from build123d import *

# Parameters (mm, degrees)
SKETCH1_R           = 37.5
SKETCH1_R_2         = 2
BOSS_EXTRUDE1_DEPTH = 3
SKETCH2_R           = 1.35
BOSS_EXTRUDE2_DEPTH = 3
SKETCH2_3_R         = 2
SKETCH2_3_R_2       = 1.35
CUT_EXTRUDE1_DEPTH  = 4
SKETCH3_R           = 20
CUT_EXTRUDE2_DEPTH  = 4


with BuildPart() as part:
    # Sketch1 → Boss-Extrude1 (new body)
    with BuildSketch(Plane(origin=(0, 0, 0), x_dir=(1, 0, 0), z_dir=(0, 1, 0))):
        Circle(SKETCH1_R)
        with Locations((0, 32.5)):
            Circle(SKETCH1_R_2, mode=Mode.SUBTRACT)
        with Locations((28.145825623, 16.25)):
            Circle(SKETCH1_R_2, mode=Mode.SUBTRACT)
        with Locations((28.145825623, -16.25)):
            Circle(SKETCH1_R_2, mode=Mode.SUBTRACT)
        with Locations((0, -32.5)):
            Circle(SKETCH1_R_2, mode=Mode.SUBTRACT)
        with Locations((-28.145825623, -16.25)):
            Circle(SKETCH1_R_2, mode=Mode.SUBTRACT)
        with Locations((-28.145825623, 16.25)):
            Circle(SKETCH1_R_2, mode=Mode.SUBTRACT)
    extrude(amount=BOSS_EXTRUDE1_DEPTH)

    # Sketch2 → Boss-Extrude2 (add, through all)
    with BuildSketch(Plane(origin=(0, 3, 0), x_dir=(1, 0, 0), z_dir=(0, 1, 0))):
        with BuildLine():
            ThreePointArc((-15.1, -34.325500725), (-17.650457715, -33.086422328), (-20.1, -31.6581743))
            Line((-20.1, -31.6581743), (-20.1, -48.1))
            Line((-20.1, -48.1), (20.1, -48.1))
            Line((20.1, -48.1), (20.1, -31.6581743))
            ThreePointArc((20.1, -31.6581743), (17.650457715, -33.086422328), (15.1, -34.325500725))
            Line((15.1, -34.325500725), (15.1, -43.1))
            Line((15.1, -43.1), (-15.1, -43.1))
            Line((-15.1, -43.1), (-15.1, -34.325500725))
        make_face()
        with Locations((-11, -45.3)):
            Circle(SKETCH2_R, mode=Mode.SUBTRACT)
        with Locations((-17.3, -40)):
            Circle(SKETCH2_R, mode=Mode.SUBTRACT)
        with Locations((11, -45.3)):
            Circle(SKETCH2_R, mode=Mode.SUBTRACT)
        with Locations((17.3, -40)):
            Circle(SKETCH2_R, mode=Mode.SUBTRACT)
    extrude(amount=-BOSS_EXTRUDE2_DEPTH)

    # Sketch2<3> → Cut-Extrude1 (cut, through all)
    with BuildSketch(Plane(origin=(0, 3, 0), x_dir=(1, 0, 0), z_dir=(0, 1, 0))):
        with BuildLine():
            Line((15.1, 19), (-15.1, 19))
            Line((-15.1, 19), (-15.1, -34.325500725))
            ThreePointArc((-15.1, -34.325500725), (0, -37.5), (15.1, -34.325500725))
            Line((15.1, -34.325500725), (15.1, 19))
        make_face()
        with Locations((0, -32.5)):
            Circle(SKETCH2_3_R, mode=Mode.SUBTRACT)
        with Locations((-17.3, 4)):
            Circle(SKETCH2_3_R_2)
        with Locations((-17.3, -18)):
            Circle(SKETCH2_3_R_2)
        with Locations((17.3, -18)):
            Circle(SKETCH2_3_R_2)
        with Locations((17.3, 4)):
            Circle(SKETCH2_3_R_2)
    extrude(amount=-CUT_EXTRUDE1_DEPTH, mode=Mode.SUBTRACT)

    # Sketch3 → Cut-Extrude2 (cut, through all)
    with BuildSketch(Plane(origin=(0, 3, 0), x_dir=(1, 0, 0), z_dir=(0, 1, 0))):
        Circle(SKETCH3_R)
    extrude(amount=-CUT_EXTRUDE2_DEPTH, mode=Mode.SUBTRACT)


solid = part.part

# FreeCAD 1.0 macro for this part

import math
import FreeCAD as App
import Part
import Sketcher
Q = App.Units.Quantity

doc = App.newDocument("Part")
body = doc.addObject("PartDesign::Body", "Body")

sketch1 = doc.addObject("Sketcher::SketchObject", "Sketch")
body.addObject(sketch1)
sketch1.AttachmentSupport = (doc.XZ_Plane, [""])
sketch1.MapMode = "FlatFace"
sketch1.addGeometry([
    Part.Circle(App.Vector(0, 0, 0), App.Vector(0, 0, 1), 37.5),
    Part.Circle(App.Vector(-28.1, 16.2, 0), App.Vector(0, 0, 1), 2),
    Part.Circle(App.Vector(0, 32.5, 0), App.Vector(0, 0, 1), 2),
    Part.Circle(App.Vector(28.1, 16.2, 0), App.Vector(0, 0, 1), 2),
    Part.Circle(App.Vector(-28.1, -16.2, 0), App.Vector(0, 0, 1), 2),
    Part.Circle(App.Vector(28.1, -16.2, 0), App.Vector(0, 0, 1), 2),
    Part.Circle(App.Vector(0, -32.5, 0), App.Vector(0, 0, 1), 2),
], False)
sketch1.addConstraint([
    Sketcher.Constraint("Coincident", 0, 3, -1, 1),
    Sketcher.Constraint("Equal", 1, 2),
    Sketcher.Constraint("Equal", 2, 3),
    Sketcher.Constraint("Equal", 3, 4),
    Sketcher.Constraint("Equal", 4, 5),
    Sketcher.Constraint("Equal", 5, 6),
    Sketcher.Constraint("Symmetric", 3, 3, 4, 3, -1, 1),
    Sketcher.Constraint("Symmetric", 1, 3, 5, 3, -1, 1),
    Sketcher.Constraint("Symmetric", 2, 3, 6, 3, -1, 1),
    Sketcher.Constraint("Symmetric", 1, 3, 3, 3, -2),
    Sketcher.Constraint("PointOnObject", 2, 3, -2),
    Sketcher.Constraint("Diameter", 0, Q("75 mm")),
    Sketcher.Constraint("Diameter", 1, Q("4 mm")),
    Sketcher.Constraint("DistanceY", -1, 1, 2, 3, Q("32.5 mm")),
    Sketcher.Constraint("DistanceY", 4, 3, 1, 3, Q("32.5 mm")),
    Sketcher.Constraint("DistanceX", 1, 3, 3, 3, Q("56.291651 mm")),
])
pad1 = doc.addObject("PartDesign::Pad", "Pad")
body.addObject(pad1)
pad1.Profile = sketch1
pad1.Length = 3
pad1.Reversed = True

sketch2 = doc.addObject("Sketcher::SketchObject", "Sketch001")
body.addObject(sketch2)
sketch2.AttachmentSupport = (doc.XZ_Plane, [""])
sketch2.MapMode = "FlatFace"
sketch2.AttachmentOffset = App.Placement(App.Vector(0, 0, -3), App.Rotation())
sketch2.addGeometry([
    Part.ArcOfCircle(Part.Circle(App.Vector(0, 0, 0), App.Vector(0, 0, 1), 37.5), math.radians(113.74), math.radians(122.41)),
    Part.LineSegment(App.Vector(-20.1, 31.7, 0), App.Vector(-20.1, 48.1, 0)),
    Part.LineSegment(App.Vector(-20.1, 48.1, 0), App.Vector(20.1, 48.1, 0)),
    Part.LineSegment(App.Vector(20.1, 48.1, 0), App.Vector(20.1, 31.7, 0)),
    Part.ArcOfCircle(Part.Circle(App.Vector(0, 0, 0), App.Vector(0, 0, 1), 37.5), math.radians(57.59), math.radians(66.26)),
    Part.LineSegment(App.Vector(15.1, 34.3, 0), App.Vector(15.1, 43.1, 0)),
    Part.LineSegment(App.Vector(15.1, 43.1, 0), App.Vector(-15.1, 43.1, 0)),
    Part.LineSegment(App.Vector(-15.1, 43.1, 0), App.Vector(-15.1, 34.3, 0)),
    Part.Circle(App.Vector(-11, 45.3, 0), App.Vector(0, 0, 1), 1.4),
    Part.Circle(App.Vector(11, 45.3, 0), App.Vector(0, 0, 1), 1.4),
    Part.Circle(App.Vector(-17.3, 40, 0), App.Vector(0, 0, 1), 1.4),
    Part.Circle(App.Vector(17.3, 40, 0), App.Vector(0, 0, 1), 1.4),
], False)
sketch2.addConstraint([
    Sketcher.Constraint("Coincident", 0, 2, 1, 1),
    Sketcher.Constraint("Coincident", 1, 2, 2, 1),
    Sketcher.Constraint("Coincident", 2, 2, 3, 1),
    Sketcher.Constraint("Coincident", 3, 2, 4, 1),
    Sketcher.Constraint("Coincident", 4, 2, 5, 1),
    Sketcher.Constraint("Coincident", 5, 2, 6, 1),
    Sketcher.Constraint("Coincident", 6, 2, 7, 1),
    Sketcher.Constraint("Coincident", 7, 2, 0, 1),
    Sketcher.Constraint("Vertical", 1),
    Sketcher.Constraint("Horizontal", 2),
    Sketcher.Constraint("Vertical", 3),
    Sketcher.Constraint("Vertical", 5),
    Sketcher.Constraint("Horizontal", 6),
    Sketcher.Constraint("Vertical", 7),
    Sketcher.Constraint("Coincident", 0, 3, -1, 1),
    Sketcher.Constraint("Coincident", 4, 3, -1, 1),
    Sketcher.Constraint("Equal", 0, 4),
    Sketcher.Constraint("Equal", 8, 9),
    Sketcher.Constraint("Equal", 9, 10),
    Sketcher.Constraint("Equal", 10, 11),
    Sketcher.Constraint("Symmetric", 8, 3, 9, 3, -2),
    Sketcher.Constraint("Symmetric", 10, 3, 11, 3, -2),
    Sketcher.Constraint("Horizontal", 0, 2, 3, 2),
    Sketcher.Constraint("Horizontal", 4, 2, 7, 2),
    Sketcher.Constraint("Diameter", 8, Q("2.7 mm")),
    Sketcher.Constraint("Radius", 0, Q("37.5 mm")),
    Sketcher.Constraint("DistanceX", 2, 1, 2, 2, Q("40.2 mm")),
    Sketcher.Constraint("DistanceX", 6, 2, 6, 1, Q("30.2 mm")),
    Sketcher.Constraint("DistanceX", 8, 3, -1, 1, Q("11 mm")),
    Sketcher.Constraint("DistanceY", -1, 1, 10, 3, Q("40 mm")),
    Sketcher.Constraint("DistanceY", 5, 2, 2, 2, Q("5 mm")),
    Sketcher.Constraint("DistanceY", -1, 1, 8, 3, Q("45.3 mm")),
    Sketcher.Constraint("DistanceX", 10, 3, -1, 1, Q("17.3 mm")),
    Sketcher.Constraint("DistanceY", -1, 1, 1, 2, Q("48.1 mm")),
])
pad2 = doc.addObject("PartDesign::Pad", "Pad001")
body.addObject(pad2)
pad2.Profile = sketch2
pad2.Length = 3

sketch3 = doc.addObject("Sketcher::SketchObject", "Sketch002")
body.addObject(sketch3)
sketch3.AttachmentSupport = (doc.XZ_Plane, [""])
sketch3.MapMode = "FlatFace"
sketch3.AttachmentOffset = App.Placement(App.Vector(0, 0, -3), App.Rotation())
sketch3.addGeometry([
    Part.LineSegment(App.Vector(15.1, -19, 0), App.Vector(-15.1, -19, 0)),
    Part.LineSegment(App.Vector(-15.1, -19, 0), App.Vector(-15.1, 34.3, 0)),
    Part.ArcOfCircle(Part.Circle(App.Vector(0, 0, 0), App.Vector(0, 0, 1), 37.5), math.radians(66), math.radians(114)),
    Part.LineSegment(App.Vector(15.1, 34.3, 0), App.Vector(15.1, -19, 0)),
    Part.Circle(App.Vector(0, 32.5, 0), App.Vector(0, 0, 1), 2),
    Part.Circle(App.Vector(-17.3, -4, 0), App.Vector(0, 0, 1), 1.4),
    Part.Circle(App.Vector(-17.3, 18, 0), App.Vector(0, 0, 1), 1.4),
    Part.Circle(App.Vector(17.3, 18, 0), App.Vector(0, 0, 1), 1.4),
    Part.Circle(App.Vector(17.3, -4, 0), App.Vector(0, 0, 1), 1.4),
], False)
sketch3.addConstraint([
    Sketcher.Constraint("Coincident", 0, 2, 1, 1),
    Sketcher.Constraint("Coincident", 1, 2, 2, 2),
    Sketcher.Constraint("Coincident", 2, 1, 3, 1),
    Sketcher.Constraint("Coincident", 3, 2, 0, 1),
    Sketcher.Constraint("Horizontal", 0),
    Sketcher.Constraint("Vertical", 1),
    Sketcher.Constraint("Vertical", 3),
    Sketcher.Constraint("Coincident", 2, 3, -1, 1),
    Sketcher.Constraint("Equal", 5, 6),
    Sketcher.Constraint("Equal", 6, 7),
    Sketcher.Constraint("Equal", 7, 8),
    Sketcher.Constraint("Symmetric", 6, 3, 7, 3, -2),
    Sketcher.Constraint("Symmetric", 5, 3, 8, 3, -2),
    Sketcher.Constraint("PointOnObject", 4, 3, -2),
    Sketcher.Constraint("Horizontal", 1, 2, 2, 1),
    Sketcher.Constraint("Vertical", 5, 3, 6, 3),
    Sketcher.Constraint("Diameter", 4, Q("4 mm")),
    Sketcher.Constraint("Diameter", 5, Q("2.7 mm")),
    Sketcher.Constraint("Radius", 2, Q("37.5 mm")),
    Sketcher.Constraint("DistanceX", 0, 2, 0, 1, Q("30.2 mm")),
    Sketcher.Constraint("DistanceY", 5, 3, -1, 1, Q("4 mm")),
    Sketcher.Constraint("DistanceY", -1, 1, 6, 3, Q("18 mm")),
    Sketcher.Constraint("DistanceY", 0, 2, -1, 1, Q("19 mm")),
    Sketcher.Constraint("DistanceY", -1, 1, 4, 3, Q("32.5 mm")),
    Sketcher.Constraint("DistanceX", 5, 3, -1, 1, Q("17.3 mm")),
])
pocket1 = doc.addObject("PartDesign::Pocket", "Pocket")
body.addObject(pocket1)
pocket1.Profile = sketch3
pocket1.Type = "ThroughAll"
pocket1.Reversed = True

sketch4 = doc.addObject("Sketcher::SketchObject", "Sketch003")
body.addObject(sketch4)
sketch4.AttachmentSupport = (doc.XZ_Plane, [""])
sketch4.MapMode = "FlatFace"
sketch4.AttachmentOffset = App.Placement(App.Vector(0, 0, -3), App.Rotation())
sketch4.addGeometry(Part.Circle(App.Vector(0, 0, 0), App.Vector(0, 0, 1), 20), False)
sketch4.addConstraint([
    Sketcher.Constraint("Coincident", 0, 3, -1, 1),
    Sketcher.Constraint("Diameter", 0, Q("40 mm")),
])
pocket2 = doc.addObject("PartDesign::Pocket", "Pocket001")
body.addObject(pocket2)
pocket2.Profile = sketch4
pocket2.Type = "ThroughAll"
pocket2.Reversed = True

doc.recompute()
